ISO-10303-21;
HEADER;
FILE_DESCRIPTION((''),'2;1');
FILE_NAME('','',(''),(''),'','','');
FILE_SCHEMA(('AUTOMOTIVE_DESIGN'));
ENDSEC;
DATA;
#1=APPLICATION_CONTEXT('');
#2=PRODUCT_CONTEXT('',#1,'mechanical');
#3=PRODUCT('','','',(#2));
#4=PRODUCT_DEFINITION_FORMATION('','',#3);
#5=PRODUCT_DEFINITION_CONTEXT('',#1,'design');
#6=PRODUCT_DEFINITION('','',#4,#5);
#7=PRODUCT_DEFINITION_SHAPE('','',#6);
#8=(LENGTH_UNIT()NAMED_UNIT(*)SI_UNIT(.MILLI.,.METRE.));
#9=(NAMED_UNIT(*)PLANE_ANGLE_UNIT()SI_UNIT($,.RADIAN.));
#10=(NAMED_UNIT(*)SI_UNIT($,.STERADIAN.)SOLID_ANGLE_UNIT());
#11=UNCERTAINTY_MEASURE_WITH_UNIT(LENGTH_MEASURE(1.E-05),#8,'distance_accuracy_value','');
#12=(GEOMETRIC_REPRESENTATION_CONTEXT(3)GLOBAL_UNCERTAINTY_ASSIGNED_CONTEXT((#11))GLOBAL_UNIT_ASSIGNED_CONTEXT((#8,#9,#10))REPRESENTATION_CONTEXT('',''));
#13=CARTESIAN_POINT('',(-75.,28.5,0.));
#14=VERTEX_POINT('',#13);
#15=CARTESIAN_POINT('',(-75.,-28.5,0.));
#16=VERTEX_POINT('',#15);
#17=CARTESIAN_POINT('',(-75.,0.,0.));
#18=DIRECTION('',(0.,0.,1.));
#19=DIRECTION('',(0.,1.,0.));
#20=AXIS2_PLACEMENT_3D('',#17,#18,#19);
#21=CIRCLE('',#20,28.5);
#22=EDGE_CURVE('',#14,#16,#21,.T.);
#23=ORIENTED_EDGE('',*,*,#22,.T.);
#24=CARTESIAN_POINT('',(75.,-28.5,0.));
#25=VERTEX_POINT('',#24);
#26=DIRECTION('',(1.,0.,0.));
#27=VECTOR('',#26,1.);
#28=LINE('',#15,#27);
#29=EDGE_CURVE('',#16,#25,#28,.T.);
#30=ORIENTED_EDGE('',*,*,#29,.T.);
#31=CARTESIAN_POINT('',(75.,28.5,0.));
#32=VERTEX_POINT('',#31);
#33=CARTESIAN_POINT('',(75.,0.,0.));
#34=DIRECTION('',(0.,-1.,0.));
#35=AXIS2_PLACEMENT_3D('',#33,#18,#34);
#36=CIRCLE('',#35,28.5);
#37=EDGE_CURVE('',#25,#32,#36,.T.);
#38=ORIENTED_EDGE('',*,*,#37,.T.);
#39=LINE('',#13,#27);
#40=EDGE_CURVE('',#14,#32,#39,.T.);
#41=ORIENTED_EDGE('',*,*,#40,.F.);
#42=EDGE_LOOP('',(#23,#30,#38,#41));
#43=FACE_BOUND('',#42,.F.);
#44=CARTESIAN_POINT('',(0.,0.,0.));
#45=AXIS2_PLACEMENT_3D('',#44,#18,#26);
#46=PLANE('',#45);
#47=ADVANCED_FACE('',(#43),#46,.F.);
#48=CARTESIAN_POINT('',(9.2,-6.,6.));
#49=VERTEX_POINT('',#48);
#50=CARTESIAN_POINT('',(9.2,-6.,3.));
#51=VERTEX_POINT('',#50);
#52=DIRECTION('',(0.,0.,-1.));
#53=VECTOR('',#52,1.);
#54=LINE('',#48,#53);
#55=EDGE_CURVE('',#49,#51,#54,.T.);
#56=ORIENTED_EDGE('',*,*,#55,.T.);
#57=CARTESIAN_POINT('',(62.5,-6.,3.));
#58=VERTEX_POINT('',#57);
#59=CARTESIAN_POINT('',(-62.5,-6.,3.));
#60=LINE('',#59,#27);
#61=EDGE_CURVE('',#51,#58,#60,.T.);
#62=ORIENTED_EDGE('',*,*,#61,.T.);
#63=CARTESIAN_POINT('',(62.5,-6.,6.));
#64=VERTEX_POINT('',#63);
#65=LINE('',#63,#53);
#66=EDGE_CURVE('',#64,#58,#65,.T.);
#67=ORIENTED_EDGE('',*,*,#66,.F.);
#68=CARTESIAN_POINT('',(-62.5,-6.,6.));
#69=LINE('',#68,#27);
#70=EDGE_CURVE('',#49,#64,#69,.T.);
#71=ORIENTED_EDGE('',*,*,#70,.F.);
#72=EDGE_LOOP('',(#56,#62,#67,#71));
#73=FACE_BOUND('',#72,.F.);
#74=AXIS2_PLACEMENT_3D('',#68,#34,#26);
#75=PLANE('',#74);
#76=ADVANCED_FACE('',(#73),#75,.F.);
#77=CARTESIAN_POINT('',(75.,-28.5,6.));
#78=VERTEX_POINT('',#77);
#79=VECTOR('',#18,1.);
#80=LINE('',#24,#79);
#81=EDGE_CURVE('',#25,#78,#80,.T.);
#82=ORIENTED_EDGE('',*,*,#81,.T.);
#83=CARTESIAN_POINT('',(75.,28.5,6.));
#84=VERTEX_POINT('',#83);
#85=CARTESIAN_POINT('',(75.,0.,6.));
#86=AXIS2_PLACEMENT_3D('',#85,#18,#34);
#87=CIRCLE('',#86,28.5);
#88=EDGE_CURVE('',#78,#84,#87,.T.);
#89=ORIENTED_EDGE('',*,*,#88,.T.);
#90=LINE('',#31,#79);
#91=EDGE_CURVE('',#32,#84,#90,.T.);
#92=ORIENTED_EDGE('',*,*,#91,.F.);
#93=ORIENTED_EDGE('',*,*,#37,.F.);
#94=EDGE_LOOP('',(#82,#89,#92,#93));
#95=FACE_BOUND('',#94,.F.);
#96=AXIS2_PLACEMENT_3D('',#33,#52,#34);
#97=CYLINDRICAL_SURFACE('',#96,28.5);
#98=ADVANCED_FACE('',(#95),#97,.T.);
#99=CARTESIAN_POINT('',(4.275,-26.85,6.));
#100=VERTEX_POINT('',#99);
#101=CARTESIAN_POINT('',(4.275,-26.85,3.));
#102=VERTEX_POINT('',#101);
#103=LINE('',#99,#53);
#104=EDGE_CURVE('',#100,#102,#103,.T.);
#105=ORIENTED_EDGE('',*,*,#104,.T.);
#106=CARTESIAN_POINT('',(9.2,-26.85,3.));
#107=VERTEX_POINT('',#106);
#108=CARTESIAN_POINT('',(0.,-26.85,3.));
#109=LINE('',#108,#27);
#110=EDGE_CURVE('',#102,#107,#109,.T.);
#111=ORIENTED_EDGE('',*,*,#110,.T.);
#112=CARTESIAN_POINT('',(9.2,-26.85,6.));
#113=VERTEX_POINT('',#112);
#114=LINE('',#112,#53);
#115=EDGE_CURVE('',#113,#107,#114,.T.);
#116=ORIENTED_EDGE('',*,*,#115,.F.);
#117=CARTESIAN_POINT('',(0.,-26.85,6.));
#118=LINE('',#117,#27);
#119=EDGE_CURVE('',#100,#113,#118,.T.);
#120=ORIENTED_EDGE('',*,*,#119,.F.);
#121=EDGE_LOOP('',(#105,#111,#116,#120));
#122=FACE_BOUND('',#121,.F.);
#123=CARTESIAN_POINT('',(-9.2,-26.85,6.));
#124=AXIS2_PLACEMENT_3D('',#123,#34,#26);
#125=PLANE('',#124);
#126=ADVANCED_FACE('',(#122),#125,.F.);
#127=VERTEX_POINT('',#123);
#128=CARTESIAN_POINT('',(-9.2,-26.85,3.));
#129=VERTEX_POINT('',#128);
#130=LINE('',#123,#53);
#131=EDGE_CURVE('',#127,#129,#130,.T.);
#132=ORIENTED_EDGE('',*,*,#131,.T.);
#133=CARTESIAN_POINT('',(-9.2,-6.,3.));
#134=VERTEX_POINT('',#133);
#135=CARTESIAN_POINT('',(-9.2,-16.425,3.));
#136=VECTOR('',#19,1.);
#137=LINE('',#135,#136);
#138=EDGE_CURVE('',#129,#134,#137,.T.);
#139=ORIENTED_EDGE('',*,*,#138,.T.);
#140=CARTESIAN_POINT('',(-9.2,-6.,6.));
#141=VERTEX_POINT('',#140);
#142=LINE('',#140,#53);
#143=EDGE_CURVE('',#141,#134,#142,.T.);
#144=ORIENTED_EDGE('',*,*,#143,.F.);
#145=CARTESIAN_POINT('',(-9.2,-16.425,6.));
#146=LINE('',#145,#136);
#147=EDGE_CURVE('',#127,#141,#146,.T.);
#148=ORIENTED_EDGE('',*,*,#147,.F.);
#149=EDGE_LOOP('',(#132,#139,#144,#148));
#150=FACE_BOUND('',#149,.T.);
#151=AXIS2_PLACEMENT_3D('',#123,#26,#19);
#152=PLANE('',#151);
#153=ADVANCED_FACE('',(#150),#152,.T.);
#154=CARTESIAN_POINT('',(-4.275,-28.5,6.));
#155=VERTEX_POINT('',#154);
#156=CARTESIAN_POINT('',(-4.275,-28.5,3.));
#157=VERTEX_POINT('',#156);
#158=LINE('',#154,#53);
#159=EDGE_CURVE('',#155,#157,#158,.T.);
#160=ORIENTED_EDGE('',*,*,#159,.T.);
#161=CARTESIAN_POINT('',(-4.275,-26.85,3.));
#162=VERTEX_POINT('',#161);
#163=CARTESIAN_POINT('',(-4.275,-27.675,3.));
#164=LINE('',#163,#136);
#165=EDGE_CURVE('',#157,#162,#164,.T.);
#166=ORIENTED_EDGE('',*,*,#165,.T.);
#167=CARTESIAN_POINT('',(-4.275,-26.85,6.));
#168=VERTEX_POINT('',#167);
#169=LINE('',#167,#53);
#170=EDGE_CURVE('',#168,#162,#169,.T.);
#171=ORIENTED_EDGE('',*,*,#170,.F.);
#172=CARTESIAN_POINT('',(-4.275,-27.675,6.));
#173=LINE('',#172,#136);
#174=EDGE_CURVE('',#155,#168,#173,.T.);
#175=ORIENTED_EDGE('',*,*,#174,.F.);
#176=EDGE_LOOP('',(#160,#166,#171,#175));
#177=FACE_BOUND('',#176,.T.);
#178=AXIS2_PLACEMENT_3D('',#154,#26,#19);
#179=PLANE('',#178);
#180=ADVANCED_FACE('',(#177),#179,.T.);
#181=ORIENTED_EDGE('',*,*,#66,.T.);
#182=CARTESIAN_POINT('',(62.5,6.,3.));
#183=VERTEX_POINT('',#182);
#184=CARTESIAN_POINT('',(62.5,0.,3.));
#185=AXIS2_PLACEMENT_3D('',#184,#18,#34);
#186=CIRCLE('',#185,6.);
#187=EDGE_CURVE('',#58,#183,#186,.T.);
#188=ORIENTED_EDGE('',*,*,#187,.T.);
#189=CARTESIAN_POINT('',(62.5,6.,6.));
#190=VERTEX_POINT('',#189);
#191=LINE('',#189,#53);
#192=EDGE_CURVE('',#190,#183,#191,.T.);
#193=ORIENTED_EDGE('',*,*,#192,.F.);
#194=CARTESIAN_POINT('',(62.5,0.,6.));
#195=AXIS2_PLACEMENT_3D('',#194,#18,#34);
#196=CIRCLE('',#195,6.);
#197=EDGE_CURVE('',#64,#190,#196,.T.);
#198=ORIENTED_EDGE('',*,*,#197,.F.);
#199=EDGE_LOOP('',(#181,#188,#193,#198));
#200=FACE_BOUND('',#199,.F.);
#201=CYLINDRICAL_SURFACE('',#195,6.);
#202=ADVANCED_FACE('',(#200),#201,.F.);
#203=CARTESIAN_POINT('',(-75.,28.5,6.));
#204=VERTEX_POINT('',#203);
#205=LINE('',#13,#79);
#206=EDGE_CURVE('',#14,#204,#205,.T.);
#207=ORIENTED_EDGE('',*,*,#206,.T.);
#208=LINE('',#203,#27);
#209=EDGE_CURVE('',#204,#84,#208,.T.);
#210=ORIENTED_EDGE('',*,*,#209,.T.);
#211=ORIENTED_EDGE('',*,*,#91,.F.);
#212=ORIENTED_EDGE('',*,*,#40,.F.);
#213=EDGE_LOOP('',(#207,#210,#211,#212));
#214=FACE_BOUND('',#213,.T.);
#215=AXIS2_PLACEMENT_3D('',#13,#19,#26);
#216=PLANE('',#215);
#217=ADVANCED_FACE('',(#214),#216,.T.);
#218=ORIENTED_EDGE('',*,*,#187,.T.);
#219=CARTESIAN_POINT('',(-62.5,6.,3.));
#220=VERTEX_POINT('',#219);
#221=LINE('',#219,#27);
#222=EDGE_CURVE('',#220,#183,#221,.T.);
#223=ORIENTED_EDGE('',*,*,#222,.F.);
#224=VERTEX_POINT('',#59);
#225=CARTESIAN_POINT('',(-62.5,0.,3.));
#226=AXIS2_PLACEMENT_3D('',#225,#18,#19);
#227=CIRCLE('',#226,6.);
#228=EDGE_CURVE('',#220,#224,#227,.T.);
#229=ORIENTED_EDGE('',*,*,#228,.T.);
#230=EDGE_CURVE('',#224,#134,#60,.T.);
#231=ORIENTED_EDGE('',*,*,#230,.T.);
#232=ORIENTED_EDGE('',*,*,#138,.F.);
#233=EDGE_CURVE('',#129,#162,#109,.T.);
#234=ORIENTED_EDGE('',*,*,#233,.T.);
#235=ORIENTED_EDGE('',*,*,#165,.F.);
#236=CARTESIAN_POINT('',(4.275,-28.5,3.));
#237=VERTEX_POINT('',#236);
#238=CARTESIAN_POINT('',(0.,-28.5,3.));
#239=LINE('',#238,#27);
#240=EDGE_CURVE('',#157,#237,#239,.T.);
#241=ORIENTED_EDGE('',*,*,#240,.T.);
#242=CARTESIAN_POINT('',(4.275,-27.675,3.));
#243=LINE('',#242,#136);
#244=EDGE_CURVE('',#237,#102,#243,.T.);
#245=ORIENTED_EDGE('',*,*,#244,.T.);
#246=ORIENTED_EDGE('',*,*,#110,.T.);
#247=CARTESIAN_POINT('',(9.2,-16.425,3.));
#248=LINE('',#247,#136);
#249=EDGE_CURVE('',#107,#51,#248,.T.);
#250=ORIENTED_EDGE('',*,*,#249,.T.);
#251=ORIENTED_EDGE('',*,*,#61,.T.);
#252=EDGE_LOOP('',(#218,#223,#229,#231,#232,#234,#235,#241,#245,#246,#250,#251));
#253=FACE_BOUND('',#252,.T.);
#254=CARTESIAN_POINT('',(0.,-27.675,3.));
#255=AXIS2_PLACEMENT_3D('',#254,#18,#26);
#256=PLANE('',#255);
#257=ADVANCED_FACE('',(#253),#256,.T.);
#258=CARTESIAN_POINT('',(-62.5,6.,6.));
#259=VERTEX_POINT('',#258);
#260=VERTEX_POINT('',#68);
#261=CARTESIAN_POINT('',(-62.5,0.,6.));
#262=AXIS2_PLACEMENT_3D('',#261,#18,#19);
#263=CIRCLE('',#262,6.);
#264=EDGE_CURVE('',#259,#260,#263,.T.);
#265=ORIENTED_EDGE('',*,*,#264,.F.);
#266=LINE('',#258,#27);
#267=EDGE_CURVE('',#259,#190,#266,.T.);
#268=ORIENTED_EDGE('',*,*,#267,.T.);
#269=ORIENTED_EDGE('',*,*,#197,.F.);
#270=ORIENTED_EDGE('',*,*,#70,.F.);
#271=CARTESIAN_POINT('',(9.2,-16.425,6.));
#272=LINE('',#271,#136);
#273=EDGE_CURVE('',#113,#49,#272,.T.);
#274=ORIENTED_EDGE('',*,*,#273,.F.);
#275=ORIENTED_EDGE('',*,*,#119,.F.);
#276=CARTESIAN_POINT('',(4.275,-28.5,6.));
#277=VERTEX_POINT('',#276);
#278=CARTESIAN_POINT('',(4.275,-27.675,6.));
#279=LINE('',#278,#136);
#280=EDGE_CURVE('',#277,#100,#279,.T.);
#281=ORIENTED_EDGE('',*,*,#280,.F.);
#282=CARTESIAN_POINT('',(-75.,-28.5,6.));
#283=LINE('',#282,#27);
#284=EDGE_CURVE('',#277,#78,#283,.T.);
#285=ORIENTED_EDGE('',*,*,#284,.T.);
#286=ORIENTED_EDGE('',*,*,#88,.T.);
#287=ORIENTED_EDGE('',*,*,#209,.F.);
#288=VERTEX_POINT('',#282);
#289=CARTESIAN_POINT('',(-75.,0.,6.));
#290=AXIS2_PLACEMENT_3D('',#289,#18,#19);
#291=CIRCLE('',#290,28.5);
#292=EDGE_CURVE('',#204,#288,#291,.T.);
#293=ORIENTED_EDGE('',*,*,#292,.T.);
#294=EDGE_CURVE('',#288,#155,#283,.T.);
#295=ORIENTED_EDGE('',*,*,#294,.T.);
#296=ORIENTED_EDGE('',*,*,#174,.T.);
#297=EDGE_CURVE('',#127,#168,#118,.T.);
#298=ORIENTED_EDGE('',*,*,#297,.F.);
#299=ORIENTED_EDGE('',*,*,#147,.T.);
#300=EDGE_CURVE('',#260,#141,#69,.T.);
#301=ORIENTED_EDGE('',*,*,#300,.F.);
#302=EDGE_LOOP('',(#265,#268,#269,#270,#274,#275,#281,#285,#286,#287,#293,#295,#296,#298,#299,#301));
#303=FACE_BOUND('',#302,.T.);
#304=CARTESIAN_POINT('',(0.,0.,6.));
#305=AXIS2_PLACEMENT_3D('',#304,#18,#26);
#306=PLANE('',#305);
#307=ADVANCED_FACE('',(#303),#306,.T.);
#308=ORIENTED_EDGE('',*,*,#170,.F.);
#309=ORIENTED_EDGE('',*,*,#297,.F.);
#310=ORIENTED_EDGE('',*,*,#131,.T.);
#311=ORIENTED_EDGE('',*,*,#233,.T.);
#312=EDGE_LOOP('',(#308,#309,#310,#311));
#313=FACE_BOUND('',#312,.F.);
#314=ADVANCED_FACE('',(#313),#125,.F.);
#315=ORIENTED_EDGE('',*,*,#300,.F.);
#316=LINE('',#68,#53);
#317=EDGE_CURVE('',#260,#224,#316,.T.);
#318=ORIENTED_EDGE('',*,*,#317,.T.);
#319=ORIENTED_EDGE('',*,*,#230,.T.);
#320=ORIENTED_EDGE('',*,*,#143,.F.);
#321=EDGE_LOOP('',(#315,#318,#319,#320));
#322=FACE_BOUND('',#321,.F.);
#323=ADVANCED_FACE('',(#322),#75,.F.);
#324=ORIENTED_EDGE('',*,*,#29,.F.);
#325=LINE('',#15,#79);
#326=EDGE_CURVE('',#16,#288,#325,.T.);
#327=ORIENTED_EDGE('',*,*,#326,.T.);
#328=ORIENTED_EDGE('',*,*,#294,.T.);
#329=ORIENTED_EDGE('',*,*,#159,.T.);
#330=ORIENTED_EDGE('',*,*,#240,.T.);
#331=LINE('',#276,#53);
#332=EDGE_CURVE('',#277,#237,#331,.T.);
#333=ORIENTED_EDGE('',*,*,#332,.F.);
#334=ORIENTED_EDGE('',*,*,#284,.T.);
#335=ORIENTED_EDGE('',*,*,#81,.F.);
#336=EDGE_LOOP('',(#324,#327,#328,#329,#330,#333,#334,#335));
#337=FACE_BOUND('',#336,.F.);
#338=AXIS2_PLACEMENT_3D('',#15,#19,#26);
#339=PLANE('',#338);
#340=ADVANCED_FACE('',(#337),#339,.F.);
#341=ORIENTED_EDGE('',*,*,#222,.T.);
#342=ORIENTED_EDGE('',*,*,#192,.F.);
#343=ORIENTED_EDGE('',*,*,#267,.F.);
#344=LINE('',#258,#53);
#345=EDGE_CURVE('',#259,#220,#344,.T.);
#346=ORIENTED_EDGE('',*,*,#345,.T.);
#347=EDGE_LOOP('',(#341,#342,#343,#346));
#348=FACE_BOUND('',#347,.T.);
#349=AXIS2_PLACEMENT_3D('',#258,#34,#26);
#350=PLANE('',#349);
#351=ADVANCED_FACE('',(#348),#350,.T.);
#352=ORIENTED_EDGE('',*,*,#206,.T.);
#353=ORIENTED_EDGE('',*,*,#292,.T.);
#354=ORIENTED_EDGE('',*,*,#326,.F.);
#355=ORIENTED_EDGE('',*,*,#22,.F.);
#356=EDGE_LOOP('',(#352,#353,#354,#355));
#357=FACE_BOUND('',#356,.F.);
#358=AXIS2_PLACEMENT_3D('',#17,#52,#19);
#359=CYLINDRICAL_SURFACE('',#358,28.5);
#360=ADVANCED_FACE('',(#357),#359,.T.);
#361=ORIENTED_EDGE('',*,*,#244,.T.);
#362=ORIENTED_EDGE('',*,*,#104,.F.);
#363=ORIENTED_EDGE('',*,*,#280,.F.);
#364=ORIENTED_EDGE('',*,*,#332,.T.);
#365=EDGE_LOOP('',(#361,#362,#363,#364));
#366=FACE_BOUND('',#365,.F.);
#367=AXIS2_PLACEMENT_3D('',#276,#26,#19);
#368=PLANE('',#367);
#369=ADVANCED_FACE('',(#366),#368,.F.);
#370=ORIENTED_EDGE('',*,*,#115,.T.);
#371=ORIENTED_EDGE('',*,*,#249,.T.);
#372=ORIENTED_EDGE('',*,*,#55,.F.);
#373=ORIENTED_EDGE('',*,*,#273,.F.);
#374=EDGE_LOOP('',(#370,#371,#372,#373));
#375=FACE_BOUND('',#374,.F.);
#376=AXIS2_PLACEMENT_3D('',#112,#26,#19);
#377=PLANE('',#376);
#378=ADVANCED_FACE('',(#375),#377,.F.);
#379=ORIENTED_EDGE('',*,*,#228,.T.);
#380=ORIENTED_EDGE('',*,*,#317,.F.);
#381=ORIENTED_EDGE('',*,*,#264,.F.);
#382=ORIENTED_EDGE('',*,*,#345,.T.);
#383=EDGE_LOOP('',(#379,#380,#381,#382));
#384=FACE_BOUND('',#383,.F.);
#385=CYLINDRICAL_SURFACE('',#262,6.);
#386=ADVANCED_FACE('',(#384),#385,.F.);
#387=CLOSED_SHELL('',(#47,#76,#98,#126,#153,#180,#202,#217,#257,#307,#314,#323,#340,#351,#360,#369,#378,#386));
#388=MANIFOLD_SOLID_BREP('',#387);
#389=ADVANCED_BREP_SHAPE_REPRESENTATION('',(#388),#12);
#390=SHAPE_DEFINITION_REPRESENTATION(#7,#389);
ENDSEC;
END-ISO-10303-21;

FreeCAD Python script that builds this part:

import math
import FreeCAD as App
import Part
import Sketcher

doc = App.newDocument("Part")
params = doc.addObject("Spreadsheet::Sheet", "Params")
for row, (alias, value) in enumerate([
    ("sketch1_radius", "28.5 mm"),
    ("sketch1_width", "150 mm"),
    ("pad1_length", "6 mm"),
    ("sketch2_radius", "6 mm"),
    ("sketch2_width", "125 mm"),
    ("pocket1_length", "3 mm"),
    ("sketch3_width", "18.4 mm"),
    ("sketch3_height", "20.85 mm"),
    ("pocket2_length", "3 mm"),
    ("sketch4_width", "8.55 mm"),
    ("sketch4_height", "1.65 mm"),
    ("pocket3_length", "3 mm"),
], start=1):
    params.set(f"A{row}", alias)
    params.set(f"B{row}", "=" + value)
    params.setAlias(f"B{row}", alias)

body = doc.addObject("PartDesign::Body", "Body")

sketch1 = body.newObject("Sketcher::SketchObject", "Sketch")
sketch1.AttachmentSupport = (doc.getObject("XY_Plane"), [""])
sketch1.MapMode = "FlatFace"
sketch1.addGeometry([
    Part.ArcOfCircle(Part.Circle(App.Vector(-75, 0, 0), App.Vector(0, 0, 1), 28), math.radians(90), math.radians(270)),
    Part.LineSegment(App.Vector(-75, -28, 0), App.Vector(75, -28, 0)),
    Part.ArcOfCircle(Part.Circle(App.Vector(75, 0, 0), App.Vector(0, 0, 1), 28), math.radians(-90), math.radians(90)),
    Part.LineSegment(App.Vector(75, 28, 0), App.Vector(-75, 28, 0)),
], False)
sketch1.addConstraint([
    Sketcher.Constraint("Tangent", 0, 2, 1, 1),
    Sketcher.Constraint("Tangent", 1, 2, 2, 1),
    Sketcher.Constraint("Tangent", 2, 2, 3, 1),
    Sketcher.Constraint("Tangent", 3, 2, 0, 1),
    Sketcher.Constraint("Horizontal", 1),
    Sketcher.Constraint("Horizontal", 3),
    Sketcher.Constraint("Symmetric", 0, 3, 2, 3, -1, 1),
    Sketcher.Constraint("Radius", 0, 28.5),
    Sketcher.Constraint("DistanceX", 1, 1, 1, 2, 150.0),
])
sketch1.setExpression("Constraints[7]", "Params.sketch1_radius")
sketch1.setExpression("Constraints[8]", "Params.sketch1_width")
pad1 = body.newObject("PartDesign::Pad", "Pad")
pad1.Profile = sketch1
pad1.setExpression("Length", "Params.pad1_length")

sketch2 = body.newObject("Sketcher::SketchObject", "Sketch001")
sketch2.AttachmentSupport = (doc.getObject("XY_Plane"), [""])
sketch2.MapMode = "FlatFace"
sketch2.AttachmentOffset = App.Placement(App.Vector(0, 0, 6), App.Rotation())
sketch2.addGeometry([
    Part.ArcOfCircle(Part.Circle(App.Vector(-62, 0, 0), App.Vector(0, 0, 1), 6), math.radians(90), math.radians(270)),
    Part.LineSegment(App.Vector(-62, -6, 0), App.Vector(62, -6, 0)),
    Part.ArcOfCircle(Part.Circle(App.Vector(62, 0, 0), App.Vector(0, 0, 1), 6), math.radians(-90), math.radians(90)),
    Part.LineSegment(App.Vector(62, 6, 0), App.Vector(-62, 6, 0)),
], False)
sketch2.addConstraint([
    Sketcher.Constraint("Tangent", 0, 2, 1, 1),
    Sketcher.Constraint("Tangent", 1, 2, 2, 1),
    Sketcher.Constraint("Tangent", 2, 2, 3, 1),
    Sketcher.Constraint("Tangent", 3, 2, 0, 1),
    Sketcher.Constraint("Horizontal", 1),
    Sketcher.Constraint("Horizontal", 3),
    Sketcher.Constraint("Symmetric", 0, 3, 2, 3, -1, 1),
    Sketcher.Constraint("Radius", 0, 6.0),
    Sketcher.Constraint("DistanceX", 1, 1, 1, 2, 125.0),
])
sketch2.setExpression("Constraints[7]", "Params.sketch2_radius")
sketch2.setExpression("Constraints[8]", "Params.sketch2_width")
pocket1 = body.newObject("PartDesign::Pocket", "Pocket")
pocket1.Profile = sketch2
pocket1.setExpression("Length", "Params.pocket1_length")

sketch3 = body.newObject("Sketcher::SketchObject", "Sketch002")
sketch3.AttachmentSupport = (doc.getObject("XY_Plane"), [""])
sketch3.MapMode = "FlatFace"
sketch3.AttachmentOffset = App.Placement(App.Vector(0, 0, 6), App.Rotation())
sketch3.addGeometry([
    Part.LineSegment(App.Vector(-9, -6, 0), App.Vector(-9, -27, 0)),
    Part.LineSegment(App.Vector(-9, -27, 0), App.Vector(9, -27, 0)),
    Part.LineSegment(App.Vector(9, -27, 0), App.Vector(9, -6, 0)),
    Part.LineSegment(App.Vector(9, -6, 0), App.Vector(-9, -6, 0)),
], False)
sketch3.addConstraint([
    Sketcher.Constraint("Coincident", 0, 2, 1, 1),
    Sketcher.Constraint("Coincident", 1, 2, 2, 1),
    Sketcher.Constraint("Coincident", 2, 2, 3, 1),
    Sketcher.Constraint("Coincident", 3, 2, 0, 1),
    Sketcher.Constraint("Vertical", 0),
    Sketcher.Constraint("Horizontal", 1),
    Sketcher.Constraint("Vertical", 2),
    Sketcher.Constraint("Horizontal", 3),
    Sketcher.Constraint("DistanceX", 1, 1, 1, 2, 18.4),
    Sketcher.Constraint("DistanceY", 2, 2, -1, 1, 6.0),
    Sketcher.Constraint("DistanceY", 0, 2, 0, 1, 20.85),
    Sketcher.Constraint("DistanceX", 0, 2, -1, 1, 9.2),
])
sketch3.setExpression("Constraints[8]", "Params.sketch3_width")
sketch3.setExpression("Constraints[10]", "Params.sketch3_height")
pocket2 = body.newObject("PartDesign::Pocket", "Pocket001")
pocket2.Profile = sketch3
pocket2.setExpression("Length", "Params.pocket2_length")

sketch4 = body.newObject("Sketcher::SketchObject", "Sketch003")
sketch4.AttachmentSupport = (doc.getObject("XY_Plane"), [""])
sketch4.MapMode = "FlatFace"
sketch4.AttachmentOffset = App.Placement(App.Vector(0, 0, 6), App.Rotation())
sketch4.addGeometry([
    Part.LineSegment(App.Vector(-4.3, -26.9, 0), App.Vector(-4.3, -28.5, 0)),
    Part.LineSegment(App.Vector(-4.3, -28.5, 0), App.Vector(4.3, -28.5, 0)),
    Part.LineSegment(App.Vector(4.3, -28.5, 0), App.Vector(4.3, -26.9, 0)),
    Part.LineSegment(App.Vector(4.3, -26.9, 0), App.Vector(-4.3, -26.9, 0)),
], False)
sketch4.addConstraint([
    Sketcher.Constraint("Coincident", 0, 2, 1, 1),
    Sketcher.Constraint("Coincident", 1, 2, 2, 1),
    Sketcher.Constraint("Coincident", 2, 2, 3, 1),
    Sketcher.Constraint("Coincident", 3, 2, 0, 1),
    Sketcher.Constraint("Vertical", 0),
    Sketcher.Constraint("Horizontal", 1),
    Sketcher.Constraint("Vertical", 2),
    Sketcher.Constraint("Horizontal", 3),
    Sketcher.Constraint("DistanceX", 1, 1, 1, 2, 8.55),
    Sketcher.Constraint("DistanceY", 0, 2, 0, 1, 1.65),
    Sketcher.Constraint("DistanceY", 0, 2, -1, 1, 28.5),
    Sketcher.Constraint("DistanceX", 0, 2, -1, 1, 4.275),
])
sketch4.setExpression("Constraints[8]", "Params.sketch4_width")
sketch4.setExpression("Constraints[9]", "Params.sketch4_height")
pocket3 = body.newObject("PartDesign::Pocket", "Pocket002")
pocket3.Profile = sketch4
pocket3.setExpression("Length", "Params.pocket3_length")

doc.recompute()
